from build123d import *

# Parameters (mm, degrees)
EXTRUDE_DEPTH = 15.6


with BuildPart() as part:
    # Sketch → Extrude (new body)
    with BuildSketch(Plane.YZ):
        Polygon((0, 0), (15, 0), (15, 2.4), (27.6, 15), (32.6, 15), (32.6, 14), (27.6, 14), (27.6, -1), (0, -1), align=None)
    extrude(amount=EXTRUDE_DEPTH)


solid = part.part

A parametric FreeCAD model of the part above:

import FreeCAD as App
import Part
import Sketcher

V = App.Vector
Q = App.Units.Quantity

doc = App.newDocument("Part")
params = doc.addObject("Spreadsheet::Sheet", "Params")
for row, (alias, value) in enumerate([
    ("sketch1_width", "15 mm"),
    ("sketch1_width2", "5 mm"),
    ("sketch1_height", "1 mm"),
    ("sketch1_width3", "27.6 mm"),
    ("pad1_length", "15.6 mm"),
], start=1):
    params.set(f"A{row}", alias)
    params.set(f"B{row}", "=" + value)
    params.setAlias(f"B{row}", alias)

body = doc.addObject("PartDesign::Body", "Body")

sketch1 = doc.addObject("Sketcher::SketchObject", "Sketch")
body.addObject(sketch1)
sketch1.AttachmentSupport = (doc.YZ_Plane, [""])
sketch1.MapMode = "FlatFace"
sketch1.addGeometry([
    Part.LineSegment(V(15, 0, 0), V(0, 0, 0)),
    Part.LineSegment(V(0, 0, 0), V(0, -1, 0)),
    Part.LineSegment(V(0, -1, 0), V(27.6, -1, 0)),
    Part.LineSegment(V(27.6, -1, 0), V(27.6, 14, 0)),
    Part.LineSegment(V(27.6, 14, 0), V(32.6, 14, 0)),
    Part.LineSegment(V(32.6, 14, 0), V(32.6, 15, 0)),
    Part.LineSegment(V(32.6, 15, 0), V(27.6, 15, 0)),
    Part.LineSegment(V(27.6, 15, 0), V(15, 2.4, 0)),
    Part.LineSegment(V(15, 2.4, 0), V(15, 0, 0)),
], False)
sketch1.addConstraint([
    Sketcher.Constraint("Coincident", 0, 2, 1, 1),
    Sketcher.Constraint("Coincident", 1, 2, 2, 1),
    Sketcher.Constraint("Coincident", 2, 2, 3, 1),
    Sketcher.Constraint("Coincident", 3, 2, 4, 1),
    Sketcher.Constraint("Coincident", 4, 2, 5, 1),
    Sketcher.Constraint("Coincident", 5, 2, 6, 1),
    Sketcher.Constraint("Coincident", 6, 2, 7, 1),
    Sketcher.Constraint("Coincident", 7, 2, 8, 1),
    Sketcher.Constraint("Coincident", 8, 2, 0, 1),
    Sketcher.Constraint("Horizontal", 0),
    Sketcher.Constraint("Vertical", 1),
    Sketcher.Constraint("Horizontal", 2),
    Sketcher.Constraint("Vertical", 3),
    Sketcher.Constraint("Horizontal", 4),
    Sketcher.Constraint("Vertical", 5),
    Sketcher.Constraint("Horizontal", 6),
    Sketcher.Constraint("Vertical", 8),
    Sketcher.Constraint("Coincident", 0, 2, -1, 1),
    Sketcher.Constraint("Vertical", 3, 2, 6, 2),
    Sketcher.Constraint("Equal", 0, 3),
    Sketcher.Constraint("Equal", 1, 5),
    Sketcher.Constraint("DistanceX", 0, 2, 0, 1, 15.0),
    Sketcher.Constraint("DistanceX", 4, 1, 4, 2, 5.0),
    Sketcher.Constraint("DistanceY", 1, 2, 1, 1, 1.0),
    Sketcher.Constraint("Angle", 7, Q("-135 deg")),
    Sketcher.Constraint("DistanceX", 2, 1, 2, 2, 27.6),
])
sketch1.setExpression("Constraints[21]", "Params.sketch1_width")
sketch1.setExpression("Constraints[22]", "Params.sketch1_width2")
sketch1.setExpression("Constraints[23]", "Params.sketch1_height")
sketch1.setExpression("Constraints[25]", "Params.sketch1_width3")
pad1 = doc.addObject("PartDesign::Pad", "Pad")
body.addObject(pad1)
pad1.Profile = sketch1
pad1.setExpression("Length", "Params.pad1_length")

doc.recompute()
